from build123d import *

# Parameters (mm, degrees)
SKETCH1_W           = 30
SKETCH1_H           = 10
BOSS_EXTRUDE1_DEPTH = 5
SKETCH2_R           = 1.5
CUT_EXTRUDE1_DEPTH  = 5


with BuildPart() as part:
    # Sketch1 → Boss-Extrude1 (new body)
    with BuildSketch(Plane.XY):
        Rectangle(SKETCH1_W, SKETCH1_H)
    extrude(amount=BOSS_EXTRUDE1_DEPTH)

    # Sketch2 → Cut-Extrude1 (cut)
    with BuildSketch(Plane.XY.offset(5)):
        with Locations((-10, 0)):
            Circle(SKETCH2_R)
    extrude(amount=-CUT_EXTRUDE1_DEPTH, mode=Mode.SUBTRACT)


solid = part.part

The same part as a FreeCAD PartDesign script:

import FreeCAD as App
import Part
import Sketcher
Q = App.Units.Quantity

doc = App.newDocument("Part")
body = doc.addObject("PartDesign::Body", "Body")

# Sketch on XY plane
sketch1 = body.newObject("Sketcher::SketchObject", "Sketch")
sketch1.AttachmentSupport = (doc.getObject("XY_Plane"), [""])
sketch1.MapMode = "FlatFace"
sketch1.addGeometry([
    Part.LineSegment(App.Vector(-15, 5, 0), App.Vector(-15, -5, 0)),
    Part.LineSegment(App.Vector(-15, -5, 0), App.Vector(15, -5, 0)),
    Part.LineSegment(App.Vector(15, -5, 0), App.Vector(15, 5, 0)),
    Part.LineSegment(App.Vector(15, 5, 0), App.Vector(-15, 5, 0)),
], False)
sketch1.addConstraint([
    Sketcher.Constraint("Coincident", 0, 2, 1, 1),
    Sketcher.Constraint("Coincident", 1, 2, 2, 1),
    Sketcher.Constraint("Coincident", 2, 2, 3, 1),
    Sketcher.Constraint("Coincident", 3, 2, 0, 1),
    Sketcher.Constraint("Vertical", 0),
    Sketcher.Constraint("Horizontal", 1),
    Sketcher.Constraint("Vertical", 2),
    Sketcher.Constraint("Horizontal", 3),
    Sketcher.Constraint("Symmetric", 0, 2, 2, 2, -1, 1),
    Sketcher.Constraint("DistanceX", 1, 1, 1, 2, Q("30 mm")),
    Sketcher.Constraint("DistanceY", 0, 2, 0, 1, Q("10 mm")),
])
pad1 = body.newObject("PartDesign::Pad", "Pad")
pad1.Profile = sketch1
pad1.Length = 5

# Sketch on XY plane
sketch2 = body.newObject("Sketcher::SketchObject", "Sketch001")
sketch2.AttachmentSupport = (doc.getObject("XY_Plane"), [""])
sketch2.MapMode = "FlatFace"
sketch2.AttachmentOffset = App.Placement(App.Vector(0, 0, 5), App.Rotation())
sketch2.addGeometry(Part.Circle(App.Vector(-10, 0, 0), App.Vector(0, 0, 1), 1.5), False)
sketch2.addConstraint([
    Sketcher.Constraint("PointOnObject", 0, 3, -1),
    Sketcher.Constraint("Diameter", 0, Q("3 mm")),
    Sketcher.Constraint("DistanceX", 0, 3, -1, 1, Q("10 mm")),
])
pocket1 = body.newObject("PartDesign::Pocket", "Pocket")
pocket1.Profile = sketch2
pocket1.Length = 5

doc.recompute()
